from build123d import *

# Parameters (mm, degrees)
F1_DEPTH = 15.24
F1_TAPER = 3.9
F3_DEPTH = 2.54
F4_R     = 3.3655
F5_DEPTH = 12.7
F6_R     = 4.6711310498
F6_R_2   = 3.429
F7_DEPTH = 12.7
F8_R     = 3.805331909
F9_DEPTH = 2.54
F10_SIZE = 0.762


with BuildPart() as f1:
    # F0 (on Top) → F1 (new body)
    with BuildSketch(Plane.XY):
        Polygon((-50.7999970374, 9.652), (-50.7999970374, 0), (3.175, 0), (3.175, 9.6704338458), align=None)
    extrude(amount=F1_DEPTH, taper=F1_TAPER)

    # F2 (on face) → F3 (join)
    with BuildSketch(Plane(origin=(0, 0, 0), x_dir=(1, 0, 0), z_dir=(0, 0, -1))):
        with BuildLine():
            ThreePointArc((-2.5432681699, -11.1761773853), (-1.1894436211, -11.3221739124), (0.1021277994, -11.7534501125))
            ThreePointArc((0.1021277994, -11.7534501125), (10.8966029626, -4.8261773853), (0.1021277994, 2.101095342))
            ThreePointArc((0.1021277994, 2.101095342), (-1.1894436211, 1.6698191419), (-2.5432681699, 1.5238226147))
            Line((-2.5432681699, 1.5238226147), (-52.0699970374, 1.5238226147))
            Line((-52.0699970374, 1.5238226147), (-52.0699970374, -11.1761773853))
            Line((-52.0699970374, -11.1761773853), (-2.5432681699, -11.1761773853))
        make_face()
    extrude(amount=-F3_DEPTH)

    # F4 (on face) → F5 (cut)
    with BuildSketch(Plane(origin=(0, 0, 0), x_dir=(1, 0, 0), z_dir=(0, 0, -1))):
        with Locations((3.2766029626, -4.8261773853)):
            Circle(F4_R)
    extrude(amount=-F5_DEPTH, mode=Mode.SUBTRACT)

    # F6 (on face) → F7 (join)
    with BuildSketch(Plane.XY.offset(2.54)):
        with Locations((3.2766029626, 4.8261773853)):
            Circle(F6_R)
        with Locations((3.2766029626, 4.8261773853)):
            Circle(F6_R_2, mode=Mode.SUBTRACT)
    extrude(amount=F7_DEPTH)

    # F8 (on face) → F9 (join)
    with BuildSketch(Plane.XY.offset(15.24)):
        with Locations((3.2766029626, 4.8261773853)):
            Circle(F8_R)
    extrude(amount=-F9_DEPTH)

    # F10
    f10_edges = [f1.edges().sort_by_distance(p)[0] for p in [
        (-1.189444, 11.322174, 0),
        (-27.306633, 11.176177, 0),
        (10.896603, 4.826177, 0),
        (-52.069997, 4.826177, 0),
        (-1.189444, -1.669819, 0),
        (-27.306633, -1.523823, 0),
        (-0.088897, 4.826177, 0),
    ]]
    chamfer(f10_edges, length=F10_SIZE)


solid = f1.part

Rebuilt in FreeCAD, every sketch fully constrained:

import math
import FreeCAD as App
import Part
import Sketcher
from FreeCAD import Vector
Q = App.Units.Quantity


def edges_at(feature, points):
    """Names of the edges that pass closest to the given points."""
    edges = feature.Shape.Edges
    near = lambda p: min(range(len(edges)), key=lambda i: edges[i].distToShape(Part.Vertex(*p))[0])
    return sorted({f"Edge{near(p) + 1}" for p in points})


def add_polygon(sketch, points):
    """Adds a closed chain of lines whose ends are joined by coincident constraints."""
    first, n = sketch.GeometryCount, len(points)
    for a, b in zip(points, points[1:] + points[:1]):
        sketch.addGeometry(Part.LineSegment(App.Vector(*a, 0), App.Vector(*b, 0)), False)
    for i in range(n):
        sketch.addConstraint(Sketcher.Constraint("Coincident", first + i, 2, first + (i + 1) % n, 1))

doc = App.newDocument("Part")
body = doc.addObject("PartDesign::Body", "Body")

# Sketch on XY plane
sketch1 = body.newObject("Sketcher::SketchObject", "Sketch")
sketch1.AttachmentSupport = (doc.getObject("XY_Plane"), [""])
sketch1.MapMode = "FlatFace"
add_polygon(sketch1, [(-51, 10), (-51, 0), (3, 0), (3, 10)])  # lines 0-3
sketch1.addConstraint([
    Sketcher.Constraint("Vertical", 0),
    Sketcher.Constraint("Horizontal", 1),
    Sketcher.Constraint("Vertical", 2),
    Sketcher.Constraint("PointOnObject", 0, 2, -1),
    Sketcher.Constraint("DistanceX", 0, 2, -1, 1, Q("1.9999999 in")),
    Sketcher.Constraint("DistanceY", 0, 2, 0, 1, Q("0.38 in")),
    Sketcher.Constraint("DistanceX", 1, 1, 1, 2, Q("2.1249999 in")),
    Sketcher.Constraint("DistanceY", 2, 1, 2, 2, Q("9.670434 mm")),
])
pad1 = body.newObject("PartDesign::Pad", "Pad")
pad1.Profile = sketch1
pad1.Length = Q("0.6 in")
pad1.TaperAngle = -3.9

# Sketch on XY plane
sketch2 = body.newObject("Sketcher::SketchObject", "Sketch001")
sketch2.AttachmentSupport = (doc.getObject("XY_Plane"), [""])
sketch2.MapMode = "FlatFace"
sketch2.addGeometry([
    Part.ArcOfCircle(Part.Circle(Vector(-2.5, 17.5, 0), Vector(0, 0, 1), 6.3), math.radians(-90), math.radians(-65)),  # 0
    Part.ArcOfCircle(Part.Circle(Vector(3.3, 4.8, 0), Vector(0, 0, 1), 7.6), math.radians(-115), math.radians(115)),  # 1
    Part.ArcOfCircle(Part.Circle(Vector(-2.5, -7.9, 0), Vector(0, 0, 1), 6.4), math.radians(65), math.radians(90)),  # 2
    Part.LineSegment(Vector(-2.5, -1.5, 0), Vector(-52.1, -1.5, 0)),  # 3
    Part.LineSegment(Vector(-52.1, -1.5, 0), Vector(-52.1, 11.2, 0)),  # 4
    Part.LineSegment(Vector(-52.1, 11.2, 0), Vector(-2.5, 11.2, 0)),  # 5
], False)
sketch2.addConstraint([
    Sketcher.Constraint("Tangent", 0, 2, 1, 2),
    Sketcher.Constraint("Tangent", 1, 1, 2, 1),
    Sketcher.Constraint("Tangent", 2, 2, 3, 1),
    Sketcher.Constraint("Coincident", 3, 2, 4, 1),
    Sketcher.Constraint("Coincident", 4, 2, 5, 1),
    Sketcher.Constraint("Tangent", 5, 2, 0, 1),
    Sketcher.Constraint("Horizontal", 3),
    Sketcher.Constraint("Vertical", 4),
    Sketcher.Constraint("Horizontal", 5),
    Sketcher.Constraint("Equal", 0, 2),
    Sketcher.Constraint("Vertical", 0, 3, 2, 3),
    Sketcher.Constraint("Radius", 1, Q("0.3 in")),
    Sketcher.Constraint("Radius", 0, Q("0.25 in")),
    Sketcher.Constraint("DistanceY", 4, 1, 4, 2, Q("0.5 in")),
    Sketcher.Constraint("DistanceX", 3, 2, -1, 1, Q("2.0499999 in")),
    Sketcher.Constraint("DistanceX", -1, 1, 1, 3, Q("0.1290001 in")),
    Sketcher.Constraint("DistanceY", -1, 1, 0, 2, Q("11.75345 mm")),
])
pad2 = body.newObject("PartDesign::Pad", "Pad001")
pad2.Profile = sketch2
pad2.Length = Q("0.1 in")

# Sketch on XY plane
sketch3 = body.newObject("Sketcher::SketchObject", "Sketch002")
sketch3.AttachmentSupport = (doc.getObject("XY_Plane"), [""])
sketch3.MapMode = "FlatFace"
sketch3.addGeometry(Part.Circle(Vector(3.3, 4.8, 0), Vector(0, 0, 1), 3.4), False)
sketch3.addConstraint([
    Sketcher.Constraint("Diameter", 0, Q("0.265 in")),
    Sketcher.Constraint("DistanceX", -1, 1, 0, 3, Q("0.1290001 in")),
    Sketcher.Constraint("DistanceY", -1, 1, 0, 3, Q("4.826177 mm")),
])
pocket1 = body.newObject("PartDesign::Pocket", "Pocket")
pocket1.Profile = sketch3
pocket1.Length = Q("0.5 in")
pocket1.Reversed = True

# Sketch on XY plane
sketch4 = body.newObject("Sketcher::SketchObject", "Sketch003")
sketch4.AttachmentSupport = (doc.getObject("XY_Plane"), [""])
sketch4.MapMode = "FlatFace"
sketch4.AttachmentOffset = App.Placement(Vector(0, 0, 0.1 * 25.4), App.Rotation())
sketch4.addGeometry([
    Part.Circle(Vector(3.3, 4.8, 0), Vector(0, 0, 1), 4.7),
    Part.Circle(Vector(3.3, 4.8, 0), Vector(0, 0, 1), 3.4),
], False)
sketch4.addConstraint([
    Sketcher.Constraint("Coincident", 1, 3, 0, 3),
    Sketcher.Constraint("Diameter", 1, Q("0.27 in")),
    Sketcher.Constraint("DistanceX", -1, 1, 0, 3, Q("0.1290001 in")),
    Sketcher.Constraint("Diameter", 0, Q("9.342262 mm")),
    Sketcher.Constraint("DistanceY", -1, 1, 0, 3, Q("4.826177 mm")),
])
pad3 = body.newObject("PartDesign::Pad", "Pad002")
pad3.Profile = sketch4
pad3.Length = Q("0.5 in")

# Sketch on XY plane
sketch5 = body.newObject("Sketcher::SketchObject", "Sketch004")
sketch5.AttachmentSupport = (doc.getObject("XY_Plane"), [""])
sketch5.MapMode = "FlatFace"
sketch5.AttachmentOffset = App.Placement(Vector(0, 0, 0.6 * 25.4), App.Rotation())
sketch5.addGeometry(Part.Circle(Vector(3.3, 4.8, 0), Vector(0, 0, 1), 3.8), False)
sketch5.addConstraint([
    Sketcher.Constraint("DistanceX", -1, 1, 0, 3, Q("0.1290001 in")),
    Sketcher.Constraint("Diameter", 0, Q("7.610664 mm")),
    Sketcher.Constraint("DistanceY", -1, 1, 0, 3, Q("4.826177 mm")),
])
pad4 = body.newObject("PartDesign::Pad", "Pad003")
pad4.Profile = sketch5
pad4.Length = Q("0.1 in")
pad4.Reversed = True
doc.recompute()

chamfer = body.newObject("PartDesign::Chamfer", "Chamfer")
chamfer.Base = (pad4, edges_at(pad4, [
    (-1.189, 11.322, 0),
    (-27.307, 11.176, 0),
    (10.897, 4.826, 0),
    (-52.07, 4.826, 0),
    (-1.189, -1.67, 0),
    (-27.307, -1.524, 0),
    (-0.089, 4.826, 0),
]))
chamfer.Size = Q("0.03 in")

doc.recompute()
